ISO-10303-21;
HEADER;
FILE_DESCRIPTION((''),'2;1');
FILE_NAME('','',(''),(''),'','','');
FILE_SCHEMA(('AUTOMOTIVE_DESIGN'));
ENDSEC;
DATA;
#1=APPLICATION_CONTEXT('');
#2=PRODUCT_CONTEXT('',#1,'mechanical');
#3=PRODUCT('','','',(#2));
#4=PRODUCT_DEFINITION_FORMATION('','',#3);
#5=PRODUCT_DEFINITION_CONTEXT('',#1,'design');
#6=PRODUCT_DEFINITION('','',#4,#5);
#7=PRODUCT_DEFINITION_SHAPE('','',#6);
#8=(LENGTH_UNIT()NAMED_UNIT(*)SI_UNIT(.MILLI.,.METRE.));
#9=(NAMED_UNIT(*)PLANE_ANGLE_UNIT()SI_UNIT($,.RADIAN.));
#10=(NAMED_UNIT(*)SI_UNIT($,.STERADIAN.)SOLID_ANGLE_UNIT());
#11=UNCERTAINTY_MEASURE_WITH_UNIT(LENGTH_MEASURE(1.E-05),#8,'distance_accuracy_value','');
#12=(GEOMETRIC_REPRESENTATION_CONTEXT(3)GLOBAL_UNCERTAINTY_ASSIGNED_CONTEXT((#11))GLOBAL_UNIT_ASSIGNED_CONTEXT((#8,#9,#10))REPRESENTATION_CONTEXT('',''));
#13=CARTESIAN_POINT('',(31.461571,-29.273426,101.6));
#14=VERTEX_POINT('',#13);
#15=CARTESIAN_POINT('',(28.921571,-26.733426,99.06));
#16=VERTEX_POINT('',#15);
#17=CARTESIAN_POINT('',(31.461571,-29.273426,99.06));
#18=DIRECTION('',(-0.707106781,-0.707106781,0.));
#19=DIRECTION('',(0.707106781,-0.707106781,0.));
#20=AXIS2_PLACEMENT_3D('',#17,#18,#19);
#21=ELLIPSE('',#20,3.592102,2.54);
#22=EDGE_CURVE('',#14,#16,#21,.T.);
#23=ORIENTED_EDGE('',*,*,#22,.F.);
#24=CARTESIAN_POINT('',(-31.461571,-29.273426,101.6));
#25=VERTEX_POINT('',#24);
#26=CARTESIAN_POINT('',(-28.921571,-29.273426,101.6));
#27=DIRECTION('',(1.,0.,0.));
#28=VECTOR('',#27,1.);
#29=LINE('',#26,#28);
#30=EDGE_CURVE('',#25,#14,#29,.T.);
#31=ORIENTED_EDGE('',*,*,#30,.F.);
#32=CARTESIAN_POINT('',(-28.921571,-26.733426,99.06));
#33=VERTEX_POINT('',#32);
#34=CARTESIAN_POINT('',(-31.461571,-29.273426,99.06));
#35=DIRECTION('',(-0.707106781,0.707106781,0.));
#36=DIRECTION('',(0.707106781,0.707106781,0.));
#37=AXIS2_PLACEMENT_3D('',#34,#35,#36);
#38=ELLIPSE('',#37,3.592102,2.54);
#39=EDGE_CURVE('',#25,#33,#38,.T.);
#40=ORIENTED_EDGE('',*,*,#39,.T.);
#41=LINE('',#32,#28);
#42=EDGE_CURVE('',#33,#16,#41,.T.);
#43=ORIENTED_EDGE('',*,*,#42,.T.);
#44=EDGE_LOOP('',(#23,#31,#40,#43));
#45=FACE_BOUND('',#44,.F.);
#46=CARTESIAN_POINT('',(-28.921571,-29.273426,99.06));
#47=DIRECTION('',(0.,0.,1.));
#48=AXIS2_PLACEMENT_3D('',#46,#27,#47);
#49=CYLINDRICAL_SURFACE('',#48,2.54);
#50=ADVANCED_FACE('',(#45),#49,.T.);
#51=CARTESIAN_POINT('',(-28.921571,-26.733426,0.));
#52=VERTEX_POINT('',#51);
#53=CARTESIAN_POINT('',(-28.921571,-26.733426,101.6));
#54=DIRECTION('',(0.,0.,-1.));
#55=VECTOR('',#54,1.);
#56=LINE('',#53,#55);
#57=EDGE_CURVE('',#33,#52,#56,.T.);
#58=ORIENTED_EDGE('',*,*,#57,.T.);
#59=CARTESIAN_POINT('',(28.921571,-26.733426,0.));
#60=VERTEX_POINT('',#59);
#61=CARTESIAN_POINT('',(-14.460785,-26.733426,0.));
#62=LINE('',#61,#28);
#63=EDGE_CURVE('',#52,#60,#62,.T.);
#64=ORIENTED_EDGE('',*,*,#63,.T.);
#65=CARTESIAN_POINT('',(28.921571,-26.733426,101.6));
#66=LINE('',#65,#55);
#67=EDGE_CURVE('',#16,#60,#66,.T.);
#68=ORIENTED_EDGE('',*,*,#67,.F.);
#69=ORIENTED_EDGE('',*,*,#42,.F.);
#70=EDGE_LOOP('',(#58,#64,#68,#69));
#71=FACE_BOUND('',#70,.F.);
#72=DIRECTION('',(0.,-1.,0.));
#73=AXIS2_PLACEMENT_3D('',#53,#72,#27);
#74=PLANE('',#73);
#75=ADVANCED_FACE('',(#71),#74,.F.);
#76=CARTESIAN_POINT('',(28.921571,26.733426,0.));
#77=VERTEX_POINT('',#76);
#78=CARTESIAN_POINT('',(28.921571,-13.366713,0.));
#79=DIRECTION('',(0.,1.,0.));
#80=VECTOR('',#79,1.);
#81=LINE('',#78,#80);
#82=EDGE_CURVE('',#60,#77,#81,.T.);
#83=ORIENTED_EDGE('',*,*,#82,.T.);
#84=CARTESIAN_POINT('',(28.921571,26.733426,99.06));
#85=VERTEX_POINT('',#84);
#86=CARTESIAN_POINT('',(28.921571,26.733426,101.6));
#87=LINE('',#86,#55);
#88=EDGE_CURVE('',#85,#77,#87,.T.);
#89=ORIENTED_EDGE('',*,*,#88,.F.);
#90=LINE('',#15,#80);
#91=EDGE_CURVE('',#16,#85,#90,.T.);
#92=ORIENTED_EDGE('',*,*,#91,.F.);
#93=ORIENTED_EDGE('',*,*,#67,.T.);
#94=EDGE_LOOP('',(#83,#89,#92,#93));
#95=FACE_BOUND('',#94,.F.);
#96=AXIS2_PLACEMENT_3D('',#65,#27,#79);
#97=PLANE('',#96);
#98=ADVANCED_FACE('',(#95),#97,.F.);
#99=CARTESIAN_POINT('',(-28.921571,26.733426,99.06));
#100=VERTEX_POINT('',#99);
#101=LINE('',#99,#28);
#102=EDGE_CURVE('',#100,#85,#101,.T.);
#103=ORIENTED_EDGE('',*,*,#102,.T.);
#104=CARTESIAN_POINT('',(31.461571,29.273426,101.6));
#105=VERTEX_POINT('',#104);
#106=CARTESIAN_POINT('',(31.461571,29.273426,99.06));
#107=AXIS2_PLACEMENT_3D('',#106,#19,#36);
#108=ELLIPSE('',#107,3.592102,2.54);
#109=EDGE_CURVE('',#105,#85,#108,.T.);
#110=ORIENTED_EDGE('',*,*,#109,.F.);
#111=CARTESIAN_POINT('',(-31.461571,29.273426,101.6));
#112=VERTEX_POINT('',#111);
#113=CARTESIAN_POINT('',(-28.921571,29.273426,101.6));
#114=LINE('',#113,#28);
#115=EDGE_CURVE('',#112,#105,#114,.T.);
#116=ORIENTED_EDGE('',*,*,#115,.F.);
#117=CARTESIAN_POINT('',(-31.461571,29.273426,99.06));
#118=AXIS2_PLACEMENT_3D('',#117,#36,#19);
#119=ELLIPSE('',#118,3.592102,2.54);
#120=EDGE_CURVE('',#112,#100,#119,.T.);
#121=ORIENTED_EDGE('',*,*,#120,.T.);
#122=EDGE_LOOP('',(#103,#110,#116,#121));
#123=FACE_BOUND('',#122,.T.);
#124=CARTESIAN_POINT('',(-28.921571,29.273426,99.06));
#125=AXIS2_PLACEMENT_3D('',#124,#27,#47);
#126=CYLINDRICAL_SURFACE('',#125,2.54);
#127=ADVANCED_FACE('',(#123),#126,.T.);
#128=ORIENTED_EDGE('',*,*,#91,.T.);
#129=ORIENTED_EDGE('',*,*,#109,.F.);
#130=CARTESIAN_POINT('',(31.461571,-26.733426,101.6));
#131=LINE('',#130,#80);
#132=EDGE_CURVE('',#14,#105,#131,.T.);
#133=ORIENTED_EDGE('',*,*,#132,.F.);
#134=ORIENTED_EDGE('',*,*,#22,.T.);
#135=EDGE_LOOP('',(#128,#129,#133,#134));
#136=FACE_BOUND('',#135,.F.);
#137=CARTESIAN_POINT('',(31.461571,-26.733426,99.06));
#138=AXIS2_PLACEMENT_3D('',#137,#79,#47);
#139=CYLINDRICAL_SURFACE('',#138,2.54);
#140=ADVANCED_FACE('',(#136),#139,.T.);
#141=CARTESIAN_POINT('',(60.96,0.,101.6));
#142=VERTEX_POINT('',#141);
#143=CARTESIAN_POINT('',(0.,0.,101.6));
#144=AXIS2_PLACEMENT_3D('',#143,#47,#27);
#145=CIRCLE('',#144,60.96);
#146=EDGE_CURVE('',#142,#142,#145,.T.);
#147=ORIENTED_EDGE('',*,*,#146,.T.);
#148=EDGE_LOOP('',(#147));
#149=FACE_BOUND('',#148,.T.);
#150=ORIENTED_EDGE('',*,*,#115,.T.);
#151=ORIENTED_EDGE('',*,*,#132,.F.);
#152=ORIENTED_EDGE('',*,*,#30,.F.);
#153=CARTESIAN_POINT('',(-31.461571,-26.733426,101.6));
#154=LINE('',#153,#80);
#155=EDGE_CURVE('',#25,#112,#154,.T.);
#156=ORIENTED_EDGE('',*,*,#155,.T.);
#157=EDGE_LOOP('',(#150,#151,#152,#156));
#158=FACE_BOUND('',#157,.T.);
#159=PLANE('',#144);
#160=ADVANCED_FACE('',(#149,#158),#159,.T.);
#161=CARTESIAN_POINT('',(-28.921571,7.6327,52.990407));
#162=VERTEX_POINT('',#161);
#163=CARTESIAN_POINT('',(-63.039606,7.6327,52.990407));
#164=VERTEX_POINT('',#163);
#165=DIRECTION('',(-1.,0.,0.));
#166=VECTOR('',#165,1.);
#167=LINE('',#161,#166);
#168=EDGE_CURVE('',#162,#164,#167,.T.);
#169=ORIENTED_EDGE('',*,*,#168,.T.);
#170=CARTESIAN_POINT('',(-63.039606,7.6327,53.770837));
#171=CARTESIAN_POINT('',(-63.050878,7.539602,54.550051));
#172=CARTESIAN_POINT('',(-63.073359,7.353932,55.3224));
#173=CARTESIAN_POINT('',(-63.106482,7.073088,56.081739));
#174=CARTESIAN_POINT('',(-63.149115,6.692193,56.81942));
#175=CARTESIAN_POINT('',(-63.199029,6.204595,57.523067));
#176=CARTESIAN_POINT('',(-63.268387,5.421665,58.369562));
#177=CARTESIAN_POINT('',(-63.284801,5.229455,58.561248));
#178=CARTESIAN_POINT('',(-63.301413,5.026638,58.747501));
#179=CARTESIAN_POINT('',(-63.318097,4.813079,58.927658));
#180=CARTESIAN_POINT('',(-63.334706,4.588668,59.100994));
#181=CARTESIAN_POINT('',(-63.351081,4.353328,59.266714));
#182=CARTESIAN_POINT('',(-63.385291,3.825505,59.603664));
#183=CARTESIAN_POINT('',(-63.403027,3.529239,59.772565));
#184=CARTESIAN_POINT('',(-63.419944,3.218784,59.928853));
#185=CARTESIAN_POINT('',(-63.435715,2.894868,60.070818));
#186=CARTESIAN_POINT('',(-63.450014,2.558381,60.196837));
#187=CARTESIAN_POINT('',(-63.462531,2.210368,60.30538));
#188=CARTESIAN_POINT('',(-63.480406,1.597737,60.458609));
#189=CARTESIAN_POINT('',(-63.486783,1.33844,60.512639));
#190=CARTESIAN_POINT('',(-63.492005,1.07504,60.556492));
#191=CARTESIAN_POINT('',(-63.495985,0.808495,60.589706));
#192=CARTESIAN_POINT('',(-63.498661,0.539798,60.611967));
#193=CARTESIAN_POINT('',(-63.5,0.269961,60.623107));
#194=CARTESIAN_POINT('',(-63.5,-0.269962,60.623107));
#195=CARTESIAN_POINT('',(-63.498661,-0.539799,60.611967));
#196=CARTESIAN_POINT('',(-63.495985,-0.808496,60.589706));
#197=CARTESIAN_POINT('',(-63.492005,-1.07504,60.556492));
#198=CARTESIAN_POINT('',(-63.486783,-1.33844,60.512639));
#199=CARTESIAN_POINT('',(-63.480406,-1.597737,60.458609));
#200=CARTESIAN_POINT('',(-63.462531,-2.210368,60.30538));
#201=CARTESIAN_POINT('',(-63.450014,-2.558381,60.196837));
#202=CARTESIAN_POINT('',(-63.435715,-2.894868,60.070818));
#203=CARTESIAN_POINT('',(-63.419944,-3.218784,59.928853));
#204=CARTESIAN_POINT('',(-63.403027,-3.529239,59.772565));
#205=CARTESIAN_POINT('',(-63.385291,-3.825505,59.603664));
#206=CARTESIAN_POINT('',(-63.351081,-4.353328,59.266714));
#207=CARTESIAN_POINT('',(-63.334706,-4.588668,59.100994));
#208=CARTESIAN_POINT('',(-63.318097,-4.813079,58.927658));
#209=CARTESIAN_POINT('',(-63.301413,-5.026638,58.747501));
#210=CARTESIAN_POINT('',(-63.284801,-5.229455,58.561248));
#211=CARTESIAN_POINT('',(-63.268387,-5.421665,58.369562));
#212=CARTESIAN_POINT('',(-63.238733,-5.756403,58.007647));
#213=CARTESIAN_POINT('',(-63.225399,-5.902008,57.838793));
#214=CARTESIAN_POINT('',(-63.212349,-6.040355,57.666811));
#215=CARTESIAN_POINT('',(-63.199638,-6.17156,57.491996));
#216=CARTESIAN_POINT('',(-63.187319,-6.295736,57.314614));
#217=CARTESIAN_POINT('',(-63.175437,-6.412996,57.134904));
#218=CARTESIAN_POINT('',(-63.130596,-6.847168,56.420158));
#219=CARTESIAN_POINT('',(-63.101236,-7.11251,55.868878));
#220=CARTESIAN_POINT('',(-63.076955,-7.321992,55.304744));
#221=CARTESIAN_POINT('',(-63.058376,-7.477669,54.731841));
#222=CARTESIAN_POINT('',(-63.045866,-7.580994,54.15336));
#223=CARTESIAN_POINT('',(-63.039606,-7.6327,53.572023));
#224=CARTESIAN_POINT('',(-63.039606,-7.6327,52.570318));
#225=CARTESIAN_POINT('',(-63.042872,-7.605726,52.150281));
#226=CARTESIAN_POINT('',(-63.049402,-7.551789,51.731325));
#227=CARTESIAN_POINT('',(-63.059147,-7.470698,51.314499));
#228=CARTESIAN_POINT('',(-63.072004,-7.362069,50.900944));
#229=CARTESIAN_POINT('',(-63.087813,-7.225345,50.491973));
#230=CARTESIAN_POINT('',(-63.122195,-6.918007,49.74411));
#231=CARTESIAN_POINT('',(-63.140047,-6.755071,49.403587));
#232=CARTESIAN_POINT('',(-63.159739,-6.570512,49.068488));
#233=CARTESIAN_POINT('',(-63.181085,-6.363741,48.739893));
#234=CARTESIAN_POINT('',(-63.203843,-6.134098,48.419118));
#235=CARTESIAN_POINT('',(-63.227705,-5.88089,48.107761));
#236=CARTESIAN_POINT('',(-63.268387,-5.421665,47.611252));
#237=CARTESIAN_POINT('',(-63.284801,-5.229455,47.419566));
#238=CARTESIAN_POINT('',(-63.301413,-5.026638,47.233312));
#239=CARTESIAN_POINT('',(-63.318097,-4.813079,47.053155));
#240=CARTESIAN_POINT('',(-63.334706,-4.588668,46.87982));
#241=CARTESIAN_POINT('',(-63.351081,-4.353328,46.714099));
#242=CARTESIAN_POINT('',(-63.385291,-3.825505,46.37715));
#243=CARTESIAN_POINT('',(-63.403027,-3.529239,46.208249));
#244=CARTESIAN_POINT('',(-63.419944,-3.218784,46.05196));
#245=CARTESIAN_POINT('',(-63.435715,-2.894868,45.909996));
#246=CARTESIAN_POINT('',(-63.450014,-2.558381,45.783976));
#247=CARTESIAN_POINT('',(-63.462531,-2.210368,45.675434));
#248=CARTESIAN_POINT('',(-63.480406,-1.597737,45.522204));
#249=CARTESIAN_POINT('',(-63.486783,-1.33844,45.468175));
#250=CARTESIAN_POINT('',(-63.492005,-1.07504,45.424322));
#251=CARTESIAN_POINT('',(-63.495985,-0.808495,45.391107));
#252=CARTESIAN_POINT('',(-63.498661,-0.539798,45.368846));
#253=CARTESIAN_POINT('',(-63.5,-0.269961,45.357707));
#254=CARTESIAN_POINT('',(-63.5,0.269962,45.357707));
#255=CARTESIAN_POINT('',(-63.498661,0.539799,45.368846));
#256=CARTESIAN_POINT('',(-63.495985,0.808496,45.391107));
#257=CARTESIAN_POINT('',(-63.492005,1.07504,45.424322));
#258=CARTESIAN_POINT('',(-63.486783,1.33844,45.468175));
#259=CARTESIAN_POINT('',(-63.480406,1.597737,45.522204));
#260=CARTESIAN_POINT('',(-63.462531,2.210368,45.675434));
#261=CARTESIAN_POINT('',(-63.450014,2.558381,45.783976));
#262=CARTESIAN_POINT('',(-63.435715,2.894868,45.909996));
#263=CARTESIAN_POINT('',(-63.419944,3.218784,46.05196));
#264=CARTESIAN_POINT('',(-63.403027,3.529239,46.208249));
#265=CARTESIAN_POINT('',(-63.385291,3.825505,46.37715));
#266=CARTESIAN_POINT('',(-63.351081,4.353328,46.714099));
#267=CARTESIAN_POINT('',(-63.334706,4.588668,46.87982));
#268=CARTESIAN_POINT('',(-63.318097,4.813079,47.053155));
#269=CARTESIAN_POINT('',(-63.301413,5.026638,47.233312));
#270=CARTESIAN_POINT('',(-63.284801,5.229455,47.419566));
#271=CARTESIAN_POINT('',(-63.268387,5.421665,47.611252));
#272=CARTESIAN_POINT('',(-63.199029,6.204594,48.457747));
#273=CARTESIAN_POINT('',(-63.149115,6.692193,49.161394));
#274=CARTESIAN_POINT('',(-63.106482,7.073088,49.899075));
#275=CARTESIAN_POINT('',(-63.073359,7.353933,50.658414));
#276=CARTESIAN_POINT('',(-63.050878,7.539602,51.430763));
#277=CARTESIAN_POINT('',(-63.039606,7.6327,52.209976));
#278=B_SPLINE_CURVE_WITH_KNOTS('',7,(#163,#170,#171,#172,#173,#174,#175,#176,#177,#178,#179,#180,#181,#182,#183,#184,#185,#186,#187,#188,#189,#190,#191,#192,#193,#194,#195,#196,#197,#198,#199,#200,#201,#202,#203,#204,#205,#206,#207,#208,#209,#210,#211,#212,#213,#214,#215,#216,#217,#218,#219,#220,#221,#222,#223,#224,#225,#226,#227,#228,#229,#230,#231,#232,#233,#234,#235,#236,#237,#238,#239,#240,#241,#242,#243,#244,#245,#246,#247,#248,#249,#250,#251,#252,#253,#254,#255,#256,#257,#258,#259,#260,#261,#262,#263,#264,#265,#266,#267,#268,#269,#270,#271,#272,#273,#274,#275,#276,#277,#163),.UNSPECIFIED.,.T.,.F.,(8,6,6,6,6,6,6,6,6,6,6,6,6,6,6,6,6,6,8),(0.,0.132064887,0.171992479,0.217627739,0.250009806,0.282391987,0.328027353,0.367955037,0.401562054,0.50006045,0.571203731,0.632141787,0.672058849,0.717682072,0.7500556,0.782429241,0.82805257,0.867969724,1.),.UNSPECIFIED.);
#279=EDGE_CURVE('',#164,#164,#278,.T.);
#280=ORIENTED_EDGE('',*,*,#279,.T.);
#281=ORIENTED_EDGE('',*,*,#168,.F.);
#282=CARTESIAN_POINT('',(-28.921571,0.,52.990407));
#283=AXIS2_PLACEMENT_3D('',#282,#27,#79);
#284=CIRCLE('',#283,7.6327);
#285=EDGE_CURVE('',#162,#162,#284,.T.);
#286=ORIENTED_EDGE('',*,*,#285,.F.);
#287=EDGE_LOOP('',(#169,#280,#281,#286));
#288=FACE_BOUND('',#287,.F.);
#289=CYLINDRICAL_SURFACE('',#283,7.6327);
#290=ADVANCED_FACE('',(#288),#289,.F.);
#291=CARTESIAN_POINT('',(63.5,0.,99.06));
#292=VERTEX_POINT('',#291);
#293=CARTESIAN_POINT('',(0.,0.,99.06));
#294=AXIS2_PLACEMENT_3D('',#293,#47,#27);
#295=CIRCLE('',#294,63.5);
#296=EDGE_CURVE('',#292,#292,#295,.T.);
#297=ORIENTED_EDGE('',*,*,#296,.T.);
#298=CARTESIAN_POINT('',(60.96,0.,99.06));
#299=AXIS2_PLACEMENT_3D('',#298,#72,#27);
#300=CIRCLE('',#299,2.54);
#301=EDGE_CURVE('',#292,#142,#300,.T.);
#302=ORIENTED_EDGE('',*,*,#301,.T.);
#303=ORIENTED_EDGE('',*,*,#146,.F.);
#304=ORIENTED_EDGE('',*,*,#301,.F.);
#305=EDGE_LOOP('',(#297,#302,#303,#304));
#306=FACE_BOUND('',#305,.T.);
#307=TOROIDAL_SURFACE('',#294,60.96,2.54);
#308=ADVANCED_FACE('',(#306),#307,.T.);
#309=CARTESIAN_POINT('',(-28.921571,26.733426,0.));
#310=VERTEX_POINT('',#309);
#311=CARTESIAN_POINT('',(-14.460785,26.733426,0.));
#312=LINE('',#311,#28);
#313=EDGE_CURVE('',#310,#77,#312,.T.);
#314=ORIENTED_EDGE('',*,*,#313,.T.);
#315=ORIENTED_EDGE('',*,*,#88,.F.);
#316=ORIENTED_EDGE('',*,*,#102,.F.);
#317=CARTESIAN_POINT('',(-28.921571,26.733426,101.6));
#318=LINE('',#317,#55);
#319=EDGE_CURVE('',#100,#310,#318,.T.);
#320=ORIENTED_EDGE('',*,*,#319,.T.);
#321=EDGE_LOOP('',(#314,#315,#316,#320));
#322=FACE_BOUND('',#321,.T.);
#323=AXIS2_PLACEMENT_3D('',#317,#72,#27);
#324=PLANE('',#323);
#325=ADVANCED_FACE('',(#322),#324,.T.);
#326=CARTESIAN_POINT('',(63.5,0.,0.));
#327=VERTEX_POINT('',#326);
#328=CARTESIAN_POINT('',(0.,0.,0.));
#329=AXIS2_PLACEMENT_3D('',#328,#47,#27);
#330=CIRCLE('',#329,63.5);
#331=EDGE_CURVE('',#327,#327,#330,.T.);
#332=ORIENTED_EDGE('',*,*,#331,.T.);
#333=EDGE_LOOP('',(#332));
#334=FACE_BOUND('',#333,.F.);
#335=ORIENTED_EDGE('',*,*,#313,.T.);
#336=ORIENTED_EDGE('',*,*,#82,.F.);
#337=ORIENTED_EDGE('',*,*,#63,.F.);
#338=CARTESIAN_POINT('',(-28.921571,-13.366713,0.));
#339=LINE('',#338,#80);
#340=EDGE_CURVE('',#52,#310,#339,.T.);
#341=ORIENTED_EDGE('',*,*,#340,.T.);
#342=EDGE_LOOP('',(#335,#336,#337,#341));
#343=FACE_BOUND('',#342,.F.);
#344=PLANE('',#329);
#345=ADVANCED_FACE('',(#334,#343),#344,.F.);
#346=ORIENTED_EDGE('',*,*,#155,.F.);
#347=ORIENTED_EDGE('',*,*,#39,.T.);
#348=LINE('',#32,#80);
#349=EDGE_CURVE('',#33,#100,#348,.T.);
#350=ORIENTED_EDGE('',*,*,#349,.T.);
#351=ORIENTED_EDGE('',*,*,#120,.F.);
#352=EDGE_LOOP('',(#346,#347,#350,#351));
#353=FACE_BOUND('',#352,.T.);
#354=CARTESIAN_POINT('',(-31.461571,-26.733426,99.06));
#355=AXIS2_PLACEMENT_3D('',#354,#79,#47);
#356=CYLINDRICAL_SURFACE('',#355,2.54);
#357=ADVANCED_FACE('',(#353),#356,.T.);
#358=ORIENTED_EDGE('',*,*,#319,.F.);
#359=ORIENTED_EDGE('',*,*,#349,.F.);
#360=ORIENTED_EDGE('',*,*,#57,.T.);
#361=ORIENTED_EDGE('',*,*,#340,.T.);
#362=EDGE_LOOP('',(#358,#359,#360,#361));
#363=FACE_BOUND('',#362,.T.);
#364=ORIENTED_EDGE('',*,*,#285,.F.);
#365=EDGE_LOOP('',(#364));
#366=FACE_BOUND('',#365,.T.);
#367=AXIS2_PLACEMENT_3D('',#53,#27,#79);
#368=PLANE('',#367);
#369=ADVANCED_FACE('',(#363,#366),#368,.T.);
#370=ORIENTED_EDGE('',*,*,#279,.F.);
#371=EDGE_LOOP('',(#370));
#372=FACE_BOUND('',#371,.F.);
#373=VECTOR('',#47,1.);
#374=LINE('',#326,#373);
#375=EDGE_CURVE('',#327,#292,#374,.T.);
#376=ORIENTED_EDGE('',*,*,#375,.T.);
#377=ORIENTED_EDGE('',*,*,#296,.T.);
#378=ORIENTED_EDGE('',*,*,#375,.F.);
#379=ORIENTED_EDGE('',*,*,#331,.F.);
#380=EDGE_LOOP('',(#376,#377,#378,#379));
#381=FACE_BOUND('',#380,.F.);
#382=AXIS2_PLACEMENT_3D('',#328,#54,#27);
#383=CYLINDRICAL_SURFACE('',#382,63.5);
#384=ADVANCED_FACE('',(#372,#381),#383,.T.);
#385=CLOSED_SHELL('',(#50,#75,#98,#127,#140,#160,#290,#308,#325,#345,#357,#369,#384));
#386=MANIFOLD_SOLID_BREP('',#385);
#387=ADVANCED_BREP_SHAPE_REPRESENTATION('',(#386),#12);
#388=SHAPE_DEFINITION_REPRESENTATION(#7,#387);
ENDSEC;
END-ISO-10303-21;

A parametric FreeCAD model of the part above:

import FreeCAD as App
import Part
import Sketcher
from FreeCAD import Vector
Q = App.Units.Quantity


def edges_at(feature, points):
    """Names of the edges that pass closest to the given points."""
    edges = feature.Shape.Edges
    near = lambda p: min(range(len(edges)), key=lambda i: edges[i].distToShape(Part.Vertex(*p))[0])
    return sorted({f"Edge{near(p) + 1}" for p in points})

doc = App.newDocument("Part")
params = doc.addObject("Spreadsheet::Sheet", "Params")
for row, (alias, value) in enumerate([
    ("sketch1_diameter", "5 in"),
    ("pad1_length", "4 in"),
    ("pocket1_length", "7.5 in"),
    ("fillet_radius", "0.1 in"),
    ("sketch3_diameter", "0.601 in"),
    ("pocket2_length", "2.28 in"),
], start=1):
    params.set(f"A{row}", alias)
    params.set(f"B{row}", "=" + value)
    params.setAlias(f"B{row}", alias)

body = doc.addObject("PartDesign::Body", "Body")

sketch1 = body.newObject("Sketcher::SketchObject", "Sketch")
sketch1.AttachmentSupport = (doc.getObject("XY_Plane"), [""])
sketch1.MapMode = "FlatFace"
sketch1.addGeometry(Part.Circle(Vector(0, 0, 0), Vector(0, 0, 1), 63.5), False)
sketch1.addConstraint(Sketcher.Constraint("Coincident", 0, 3, -1, 1))
sketch1.addConstraint(Sketcher.Constraint("Diameter", 0, Q("5 in")))
sketch1.setExpression("Constraints[1]", "Params.sketch1_diameter")
pad1 = body.newObject("PartDesign::Pad", "Pad")
pad1.Profile = sketch1
pad1.setExpression("Length", "Params.pad1_length")

sketch2 = body.newObject("Sketcher::SketchObject", "Sketch001")
sketch2.AttachmentSupport = (doc.getObject("XY_Plane"), [""])
sketch2.MapMode = "FlatFace"
sketch2.AttachmentOffset = App.Placement(Vector(0, 0, 4 * 25.4), App.Rotation())
sketch2.addGeometry(Part.LineSegment(Vector(-28.921571, 26.733426, 0), Vector(-28.921571, -26.733426, 0)), False)
sketch2.addGeometry(Part.LineSegment(Vector(-28.921571, -26.733426, 0), Vector(28.921571, -26.733426, 0)), False)
sketch2.addGeometry(Part.LineSegment(Vector(28.921571, -26.733426, 0), Vector(28.921571, 26.733426, 0)), False)
sketch2.addGeometry(Part.LineSegment(Vector(28.921571, 26.733426, 0), Vector(-28.921571, 26.733426, 0)), False)
sketch2.addConstraint(Sketcher.Constraint("Coincident", 0, 2, 1, 1))
sketch2.addConstraint(Sketcher.Constraint("Coincident", 1, 2, 2, 1))
sketch2.addConstraint(Sketcher.Constraint("Coincident", 2, 2, 3, 1))
sketch2.addConstraint(Sketcher.Constraint("Coincident", 3, 2, 0, 1))
sketch2.addConstraint(Sketcher.Constraint("Vertical", 0))
sketch2.addConstraint(Sketcher.Constraint("Horizontal", 1))
sketch2.addConstraint(Sketcher.Constraint("Vertical", 2))
sketch2.addConstraint(Sketcher.Constraint("Horizontal", 3))
sketch2.addConstraint(Sketcher.Constraint("Symmetric", 0, 2, 2, 2, -1, 1))
sketch2.addConstraint(Sketcher.Constraint("DistanceX", 1, 1, 1, 2, Q("57.843141 mm")))
sketch2.addConstraint(Sketcher.Constraint("DistanceY", 0, 2, 0, 1, Q("53.466853 mm")))
pocket1 = body.newObject("PartDesign::Pocket", "Pocket")
pocket1.Profile = sketch2
pocket1.setExpression("Length", "Params.pocket1_length")
doc.recompute()

fillet = body.newObject("PartDesign::Fillet", "Fillet")
fillet.Base = (pocket1, edges_at(pocket1, [
    (-63.5, 0, 101.6),
    (0, -26.733, 101.6),
    (28.922, 0, 101.6),
    (0, 26.733, 101.6),
    (-28.922, 0, 101.6),
]))
fillet.setExpression("Radius", "Params.fillet_radius")

sketch3 = body.newObject("Sketcher::SketchObject", "Sketch002")
sketch3.AttachmentSupport = (doc.getObject("YZ_Plane"), [""])
sketch3.MapMode = "FlatFace"
sketch3.AttachmentOffset = App.Placement(Vector(0, 0, -28.921571), App.Rotation())
sketch3.addGeometry(Part.Circle(Vector(0, 52.990407, 0), Vector(0, 0, 1), 7.6327), False)
sketch3.addConstraint(Sketcher.Constraint("PointOnObject", 0, 3, -2))
sketch3.addConstraint(Sketcher.Constraint("Diameter", 0, Q("0.601 in")))
sketch3.addConstraint(Sketcher.Constraint("DistanceY", -1, 1, 0, 3, Q("52.990407 mm")))
sketch3.setExpression("Constraints[1]", "Params.sketch3_diameter")
pocket2 = body.newObject("PartDesign::Pocket", "Pocket001")
pocket2.Profile = sketch3
pocket2.setExpression("Length", "Params.pocket2_length")

doc.recompute()
